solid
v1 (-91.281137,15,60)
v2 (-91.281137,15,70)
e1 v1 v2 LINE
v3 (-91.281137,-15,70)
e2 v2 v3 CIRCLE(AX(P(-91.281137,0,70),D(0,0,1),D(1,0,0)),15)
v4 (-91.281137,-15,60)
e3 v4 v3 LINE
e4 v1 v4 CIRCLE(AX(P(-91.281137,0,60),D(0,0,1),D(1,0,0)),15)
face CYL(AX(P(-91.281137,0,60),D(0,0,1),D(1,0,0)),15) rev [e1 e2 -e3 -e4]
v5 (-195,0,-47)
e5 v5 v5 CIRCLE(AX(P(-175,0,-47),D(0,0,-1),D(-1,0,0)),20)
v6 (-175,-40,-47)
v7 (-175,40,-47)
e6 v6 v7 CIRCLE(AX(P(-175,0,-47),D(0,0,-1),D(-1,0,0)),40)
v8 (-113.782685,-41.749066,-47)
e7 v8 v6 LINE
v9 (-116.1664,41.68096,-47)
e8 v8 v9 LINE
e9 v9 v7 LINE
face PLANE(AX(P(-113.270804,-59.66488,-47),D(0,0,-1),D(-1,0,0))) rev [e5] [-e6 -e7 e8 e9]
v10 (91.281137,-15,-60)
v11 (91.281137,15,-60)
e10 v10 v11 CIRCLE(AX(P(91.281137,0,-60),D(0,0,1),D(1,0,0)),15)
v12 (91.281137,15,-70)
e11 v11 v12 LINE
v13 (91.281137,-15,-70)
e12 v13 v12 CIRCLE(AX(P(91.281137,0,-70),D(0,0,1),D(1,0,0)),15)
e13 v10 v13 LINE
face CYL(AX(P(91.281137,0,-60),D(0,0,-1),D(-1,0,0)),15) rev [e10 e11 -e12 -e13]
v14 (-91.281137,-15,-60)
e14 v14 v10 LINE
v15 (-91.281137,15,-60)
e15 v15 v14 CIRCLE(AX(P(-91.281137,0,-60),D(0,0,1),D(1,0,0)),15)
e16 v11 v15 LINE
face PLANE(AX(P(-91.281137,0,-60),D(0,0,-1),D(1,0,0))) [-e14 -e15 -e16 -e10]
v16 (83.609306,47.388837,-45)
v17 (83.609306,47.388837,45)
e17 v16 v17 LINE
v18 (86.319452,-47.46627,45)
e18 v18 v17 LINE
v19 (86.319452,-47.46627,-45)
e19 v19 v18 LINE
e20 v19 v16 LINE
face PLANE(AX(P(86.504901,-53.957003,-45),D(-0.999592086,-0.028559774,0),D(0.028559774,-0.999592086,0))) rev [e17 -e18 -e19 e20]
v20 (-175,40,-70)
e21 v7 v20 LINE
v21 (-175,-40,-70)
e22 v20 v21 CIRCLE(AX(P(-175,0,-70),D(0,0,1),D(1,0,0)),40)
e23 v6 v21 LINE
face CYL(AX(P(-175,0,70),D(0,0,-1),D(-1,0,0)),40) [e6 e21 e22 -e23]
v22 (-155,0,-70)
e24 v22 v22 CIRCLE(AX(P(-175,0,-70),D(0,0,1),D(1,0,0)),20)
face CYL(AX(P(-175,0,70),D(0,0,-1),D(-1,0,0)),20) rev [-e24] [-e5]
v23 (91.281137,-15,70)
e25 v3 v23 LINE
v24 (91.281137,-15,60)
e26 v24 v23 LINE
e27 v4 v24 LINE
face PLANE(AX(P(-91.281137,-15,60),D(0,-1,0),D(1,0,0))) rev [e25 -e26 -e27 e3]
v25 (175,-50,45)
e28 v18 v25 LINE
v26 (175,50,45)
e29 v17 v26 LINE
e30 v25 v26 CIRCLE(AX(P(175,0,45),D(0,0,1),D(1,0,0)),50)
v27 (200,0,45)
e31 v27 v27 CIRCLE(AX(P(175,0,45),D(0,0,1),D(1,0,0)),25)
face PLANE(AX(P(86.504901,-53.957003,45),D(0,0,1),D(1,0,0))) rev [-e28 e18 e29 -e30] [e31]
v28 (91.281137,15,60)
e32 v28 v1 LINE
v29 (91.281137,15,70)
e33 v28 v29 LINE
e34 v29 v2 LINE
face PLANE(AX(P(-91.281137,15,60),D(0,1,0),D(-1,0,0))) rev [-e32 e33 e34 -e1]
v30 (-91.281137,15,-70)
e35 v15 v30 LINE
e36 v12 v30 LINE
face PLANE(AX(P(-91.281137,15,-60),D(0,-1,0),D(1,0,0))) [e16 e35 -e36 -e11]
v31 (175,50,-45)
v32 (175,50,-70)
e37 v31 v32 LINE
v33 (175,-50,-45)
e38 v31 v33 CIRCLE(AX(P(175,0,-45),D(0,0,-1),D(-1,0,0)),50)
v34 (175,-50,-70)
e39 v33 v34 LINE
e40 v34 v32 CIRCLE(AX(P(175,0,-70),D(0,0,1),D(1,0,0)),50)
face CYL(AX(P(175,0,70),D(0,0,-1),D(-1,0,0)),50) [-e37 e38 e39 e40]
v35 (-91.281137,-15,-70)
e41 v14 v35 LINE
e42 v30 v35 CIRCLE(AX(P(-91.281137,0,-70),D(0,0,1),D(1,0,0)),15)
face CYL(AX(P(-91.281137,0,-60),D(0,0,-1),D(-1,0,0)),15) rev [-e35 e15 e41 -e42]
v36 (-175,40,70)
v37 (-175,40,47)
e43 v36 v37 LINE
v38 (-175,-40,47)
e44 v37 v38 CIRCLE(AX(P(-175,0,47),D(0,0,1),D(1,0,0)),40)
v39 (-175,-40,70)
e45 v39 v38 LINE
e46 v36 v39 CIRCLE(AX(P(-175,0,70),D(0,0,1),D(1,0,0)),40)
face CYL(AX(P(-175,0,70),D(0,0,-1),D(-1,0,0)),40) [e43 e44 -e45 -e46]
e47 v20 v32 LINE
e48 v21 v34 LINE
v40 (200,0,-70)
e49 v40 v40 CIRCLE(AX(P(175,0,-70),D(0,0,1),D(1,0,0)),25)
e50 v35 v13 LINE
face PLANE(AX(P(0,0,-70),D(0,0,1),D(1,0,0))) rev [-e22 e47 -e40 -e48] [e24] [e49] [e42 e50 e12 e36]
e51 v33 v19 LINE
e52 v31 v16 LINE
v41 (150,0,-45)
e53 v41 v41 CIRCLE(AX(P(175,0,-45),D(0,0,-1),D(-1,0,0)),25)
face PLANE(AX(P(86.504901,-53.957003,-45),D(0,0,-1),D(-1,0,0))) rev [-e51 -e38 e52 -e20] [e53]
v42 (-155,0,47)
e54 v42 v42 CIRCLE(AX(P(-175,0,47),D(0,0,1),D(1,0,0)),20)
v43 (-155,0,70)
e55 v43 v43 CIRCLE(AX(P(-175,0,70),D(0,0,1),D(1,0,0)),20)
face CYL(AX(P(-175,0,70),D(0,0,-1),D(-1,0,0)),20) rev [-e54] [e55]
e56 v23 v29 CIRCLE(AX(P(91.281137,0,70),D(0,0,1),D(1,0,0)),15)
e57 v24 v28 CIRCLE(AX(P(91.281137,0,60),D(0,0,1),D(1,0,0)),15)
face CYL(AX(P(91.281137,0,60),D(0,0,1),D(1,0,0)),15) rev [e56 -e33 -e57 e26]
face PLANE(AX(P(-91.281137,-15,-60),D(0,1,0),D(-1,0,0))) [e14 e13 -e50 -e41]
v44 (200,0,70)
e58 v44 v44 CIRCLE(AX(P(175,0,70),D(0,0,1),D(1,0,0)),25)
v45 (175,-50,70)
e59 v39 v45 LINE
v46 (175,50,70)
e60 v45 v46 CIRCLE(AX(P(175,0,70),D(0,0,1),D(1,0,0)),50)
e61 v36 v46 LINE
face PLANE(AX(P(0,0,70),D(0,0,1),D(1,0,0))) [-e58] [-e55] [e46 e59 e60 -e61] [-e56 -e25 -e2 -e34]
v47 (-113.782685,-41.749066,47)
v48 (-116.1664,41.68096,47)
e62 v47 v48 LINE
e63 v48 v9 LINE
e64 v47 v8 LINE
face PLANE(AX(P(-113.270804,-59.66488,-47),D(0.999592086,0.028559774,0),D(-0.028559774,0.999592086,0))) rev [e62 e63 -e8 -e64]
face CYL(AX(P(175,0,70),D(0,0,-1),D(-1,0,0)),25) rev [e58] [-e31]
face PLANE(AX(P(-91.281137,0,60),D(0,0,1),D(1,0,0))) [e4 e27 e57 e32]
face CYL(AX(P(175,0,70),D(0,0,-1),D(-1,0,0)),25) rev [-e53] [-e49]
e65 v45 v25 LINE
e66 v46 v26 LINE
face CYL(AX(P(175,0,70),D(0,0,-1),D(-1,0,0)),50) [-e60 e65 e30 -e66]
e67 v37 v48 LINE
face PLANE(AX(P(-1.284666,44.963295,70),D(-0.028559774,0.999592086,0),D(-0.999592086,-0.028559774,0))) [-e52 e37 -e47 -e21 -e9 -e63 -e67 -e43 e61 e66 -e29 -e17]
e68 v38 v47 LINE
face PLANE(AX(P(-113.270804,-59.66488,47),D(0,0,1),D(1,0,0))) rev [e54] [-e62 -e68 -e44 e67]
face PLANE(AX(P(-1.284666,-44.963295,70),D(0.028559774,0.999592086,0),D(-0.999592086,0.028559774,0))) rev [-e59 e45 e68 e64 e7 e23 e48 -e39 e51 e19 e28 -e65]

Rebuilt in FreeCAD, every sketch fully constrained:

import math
import FreeCAD as App
import Part
import Sketcher
Q = App.Units.Quantity

doc = App.newDocument("Part")
body = doc.addObject("PartDesign::Body", "Body")

# Sketch on XY plane
sketch1 = body.newObject("Sketcher::SketchObject", "Sketch")
sketch1.AttachmentSupport = (doc.getObject("XY_Plane"), [""])
sketch1.MapMode = "FlatFace"
sketch1.addGeometry([
    Part.LineSegment(App.Vector(172.145188, 49.918434, 0), App.Vector(-175, 40, 0)),  # 0
    Part.ArcOfCircle(Part.Circle(App.Vector(-175, 0, 0), App.Vector(0, 0, 1), 40), math.radians(90), math.radians(270)),  # 1
    Part.LineSegment(App.Vector(-175, -40, 0), App.Vector(172.145188, -49.918434, 0)),  # 2
    Part.LineSegment(App.Vector(172.145188, -49.918434, 0), App.Vector(175, -50, 0)),  # 3
    Part.ArcOfCircle(Part.Circle(App.Vector(175, 0, 0), App.Vector(0, 0, 1), 50), math.radians(-90), math.radians(90)),  # 4
    Part.LineSegment(App.Vector(175, 50, 0), App.Vector(172.145188, 49.918434, 0)),  # 5
    Part.Circle(App.Vector(-175, 0, 0), App.Vector(0, 0, 1), 20),  # 6
    Part.Circle(App.Vector(175, 0, 0), App.Vector(0, 0, 1), 25),  # 7
], False)
sketch1.addConstraint([
    Sketcher.Constraint("Coincident", 0, 2, 1, 1),
    Sketcher.Constraint("Coincident", 1, 2, 2, 1),
    Sketcher.Constraint("Coincident", 2, 2, 3, 1),
    Sketcher.Constraint("Coincident", 3, 2, 4, 1),
    Sketcher.Constraint("Coincident", 4, 2, 5, 1),
    Sketcher.Constraint("Coincident", 5, 2, 0, 1),
    Sketcher.Constraint("Coincident", 6, 3, 1, 3),
    Sketcher.Constraint("Coincident", 7, 3, 4, 3),
    Sketcher.Constraint("Symmetric", 1, 3, 4, 3, -1, 1),
    Sketcher.Constraint("Symmetric", 0, 2, 1, 2, -1),
    Sketcher.Constraint("Symmetric", 2, 2, 5, 2, -1),
    Sketcher.Constraint("Parallel", 2, 3),
    Sketcher.Constraint("Parallel", 0, 5),
    Sketcher.Constraint("Vertical", 6, 3, 0, 2),
    Sketcher.Constraint("Vertical", 7, 3, 3, 2),
    Sketcher.Constraint("Diameter", 6, Q("40 mm")),
    Sketcher.Constraint("Diameter", 7, Q("50 mm")),
    Sketcher.Constraint("Radius", 1, Q("40 mm")),
    Sketcher.Constraint("Radius", 4, Q("50 mm")),
    Sketcher.Constraint("DistanceX", 1, 3, -1, 1, Q("175 mm")),
    Sketcher.Constraint("Distance", 0, Q("347.286851 mm")),
])
pad1 = body.newObject("PartDesign::Pad", "Pad")
pad1.Profile = sketch1
pad1.Length = 140
pad1.Midplane = True

# Sketch on an angled plane
sketch2 = body.newObject("Sketcher::SketchObject", "Sketch001")
sketch2.Placement = App.Placement(App.Vector(-1.284666, 44.963295, 0), App.Rotation(App.Vector(0.999592086, 0.028559774, 0), App.Vector(0, 0, -0.999999999), App.Vector(-0.028559774, 0.999592086, 0), "ZXY"))
sketch2.addGeometry([
    Part.LineSegment(App.Vector(-214.928615, 47, 0), App.Vector(-214.928615, -47, 0)),  # 0
    Part.LineSegment(App.Vector(-214.928615, -47, 0), App.Vector(-114.928615, -47, 0)),  # 1
    Part.LineSegment(App.Vector(-114.928615, -47, 0), App.Vector(-114.928615, 47, 0)),  # 2
    Part.LineSegment(App.Vector(-114.928615, 47, 0), App.Vector(-214.928615, 47, 0)),  # 3
    Part.LineSegment(App.Vector(84.928615, 45, 0), App.Vector(84.928615, -45, 0)),  # 4
    Part.LineSegment(App.Vector(84.928615, -45, 0), App.Vector(224.928615, -45, 0)),  # 5
    Part.LineSegment(App.Vector(224.928615, -45, 0), App.Vector(224.928615, 45, 0)),  # 6
    Part.LineSegment(App.Vector(224.928615, 45, 0), App.Vector(84.928615, 45, 0)),  # 7
], False)
sketch2.addConstraint([
    Sketcher.Constraint("Coincident", 0, 2, 1, 1),
    Sketcher.Constraint("Coincident", 1, 2, 2, 1),
    Sketcher.Constraint("Coincident", 2, 2, 3, 1),
    Sketcher.Constraint("Coincident", 3, 2, 0, 1),
    Sketcher.Constraint("Coincident", 4, 2, 5, 1),
    Sketcher.Constraint("Coincident", 5, 2, 6, 1),
    Sketcher.Constraint("Coincident", 6, 2, 7, 1),
    Sketcher.Constraint("Coincident", 7, 2, 4, 1),
    Sketcher.Constraint("Vertical", 0),
    Sketcher.Constraint("Horizontal", 1),
    Sketcher.Constraint("Vertical", 2),
    Sketcher.Constraint("Horizontal", 3),
    Sketcher.Constraint("Vertical", 4),
    Sketcher.Constraint("Horizontal", 5),
    Sketcher.Constraint("Vertical", 6),
    Sketcher.Constraint("Horizontal", 7),
    Sketcher.Constraint("DistanceX", 1, 1, 1, 2, Q("100 mm")),
    Sketcher.Constraint("DistanceX", 5, 1, 5, 2, Q("140 mm")),
    Sketcher.Constraint("DistanceY", 0, 2, 0, 1, Q("94 mm")),
    Sketcher.Constraint("DistanceY", 4, 2, 4, 1, Q("90 mm")),
    Sketcher.Constraint("DistanceY", 0, 2, -1, 1, Q("47 mm")),
    Sketcher.Constraint("DistanceY", 4, 2, -1, 1, Q("45 mm")),
    Sketcher.Constraint("DistanceX", 1, 2, 4, 2, Q("199.85723 mm")),
    Sketcher.Constraint("DistanceX", 0, 2, -1, 1, Q("214.928615 mm")),
])
pocket1 = body.newObject("PartDesign::Pocket", "Pocket")
pocket1.Profile = sketch2
pocket1.Type = "ThroughAll"

# Sketch on an angled plane
sketch3 = body.newObject("Sketcher::SketchObject", "Sketch002")
sketch3.Placement = App.Placement(App.Vector(-1.284666, 44.963295, 0), App.Rotation(App.Vector(0.999592086, 0.028559774, 0), App.Vector(0, 0, -0.999999999), App.Vector(-0.028559774, 0.999592086, 0), "ZXY"))
sketch3.addGeometry([
    Part.LineSegment(App.Vector(-176.071006, 47, 0), App.Vector(-176.071006, -47, 0)),
    Part.LineSegment(App.Vector(-176.071006, -47, 0), App.Vector(-173.786224, -47, 0)),
    Part.LineSegment(App.Vector(-173.786224, -47, 0), App.Vector(-173.786224, 47, 0)),
    Part.LineSegment(App.Vector(-173.786224, 47, 0), App.Vector(-176.071006, 47, 0)),
], False)
sketch3.addConstraint([
    Sketcher.Constraint("Coincident", 0, 2, 1, 1),
    Sketcher.Constraint("Coincident", 1, 2, 2, 1),
    Sketcher.Constraint("Coincident", 2, 2, 3, 1),
    Sketcher.Constraint("Coincident", 3, 2, 0, 1),
    Sketcher.Constraint("Vertical", 0),
    Sketcher.Constraint("Horizontal", 1),
    Sketcher.Constraint("Vertical", 2),
    Sketcher.Constraint("Horizontal", 3),
    Sketcher.Constraint("DistanceY", 0, 2, 0, 1, Q("94 mm")),
    Sketcher.Constraint("DistanceY", 0, 2, -1, 1, Q("47 mm")),
    Sketcher.Constraint("DistanceX", 1, 1, 1, 2, Q("2.284782 mm")),
    Sketcher.Constraint("DistanceX", 0, 2, -1, 1, Q("176.071006 mm")),
])
pocket2 = body.newObject("PartDesign::Pocket", "Pocket001")
pocket2.Profile = sketch3
pocket2.Length = 90
pocket2.Midplane = True

# Sketch on XY plane
sketch4 = body.newObject("Sketcher::SketchObject", "Sketch003")
sketch4.AttachmentSupport = (doc.getObject("XY_Plane"), [""])
sketch4.MapMode = "FlatFace"
sketch4.AttachmentOffset = App.Placement(App.Vector(0, 0, 70), App.Rotation())
sketch4.addGeometry([
    Part.LineSegment(App.Vector(91.281137, 15, 0), App.Vector(-91.281137, 15, 0)),
    Part.ArcOfCircle(Part.Circle(App.Vector(-91.281137, 0, 0), App.Vector(0, 0, 1), 15), math.radians(90), math.radians(270)),
    Part.LineSegment(App.Vector(-91.281137, -15, 0), App.Vector(91.281137, -15, 0)),
    Part.ArcOfCircle(Part.Circle(App.Vector(91.281137, 0, 0), App.Vector(0, 0, 1), 15), math.radians(-90), math.radians(90)),
], False)
sketch4.addConstraint([
    Sketcher.Constraint("Tangent", 0, 2, 1, 1),
    Sketcher.Constraint("Tangent", 1, 2, 2, 1),
    Sketcher.Constraint("Tangent", 2, 2, 3, 1),
    Sketcher.Constraint("Tangent", 3, 2, 0, 1),
    Sketcher.Constraint("Horizontal", 0),
    Sketcher.Constraint("Horizontal", 2),
    Sketcher.Constraint("Symmetric", 1, 3, 3, 3, -1, 1),
    Sketcher.Constraint("Radius", 1, Q("15 mm")),
    Sketcher.Constraint("DistanceX", 0, 2, 0, 1, Q("182.562274 mm")),
])
pocket3 = body.newObject("PartDesign::Pocket", "Pocket002")
pocket3.Profile = sketch4
pocket3.Length = 10
doc.recompute()

mirrored = body.newObject("PartDesign::Mirrored", "Mirrored")
mirrored.Originals = [pocket3]
mirrored.MirrorPlane = (doc.getObject("XY_Plane"), [""])
body.Tip = mirrored

doc.recompute()
